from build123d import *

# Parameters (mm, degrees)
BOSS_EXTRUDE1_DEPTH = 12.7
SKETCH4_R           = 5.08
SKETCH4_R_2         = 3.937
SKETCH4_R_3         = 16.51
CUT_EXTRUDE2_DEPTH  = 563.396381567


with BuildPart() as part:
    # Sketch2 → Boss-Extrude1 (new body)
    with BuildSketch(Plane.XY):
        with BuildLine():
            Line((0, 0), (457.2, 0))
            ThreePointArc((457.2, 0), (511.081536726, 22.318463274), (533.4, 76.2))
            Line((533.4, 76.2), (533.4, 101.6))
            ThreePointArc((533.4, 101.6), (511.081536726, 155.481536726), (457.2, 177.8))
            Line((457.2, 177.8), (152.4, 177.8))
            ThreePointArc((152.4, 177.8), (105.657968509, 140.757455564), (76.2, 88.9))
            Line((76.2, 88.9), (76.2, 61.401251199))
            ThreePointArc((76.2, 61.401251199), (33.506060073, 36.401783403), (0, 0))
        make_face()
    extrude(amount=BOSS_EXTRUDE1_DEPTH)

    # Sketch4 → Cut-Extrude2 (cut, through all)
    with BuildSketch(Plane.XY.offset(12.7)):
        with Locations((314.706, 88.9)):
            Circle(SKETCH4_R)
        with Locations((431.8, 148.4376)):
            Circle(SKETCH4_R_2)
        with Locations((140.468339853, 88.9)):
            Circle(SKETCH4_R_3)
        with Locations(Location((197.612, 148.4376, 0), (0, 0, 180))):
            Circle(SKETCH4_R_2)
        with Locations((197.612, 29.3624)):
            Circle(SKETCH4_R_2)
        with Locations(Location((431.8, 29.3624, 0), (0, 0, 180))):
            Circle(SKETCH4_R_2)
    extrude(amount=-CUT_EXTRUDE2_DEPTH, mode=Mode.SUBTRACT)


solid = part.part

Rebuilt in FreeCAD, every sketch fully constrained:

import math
import FreeCAD as App
import Part
import Sketcher
from FreeCAD import Vector
Q = App.Units.Quantity

doc = App.newDocument("Part")
params = doc.addObject("Spreadsheet::Sheet", "Params")
for row, (alias, value) in enumerate([
    ("sketch1_radius", "3 in"),
    ("sketch1_width", "18 in"),
    ("sketch1_width2", "12 in"),
    ("sketch1_height", "1 in"),
    ("pad1_length", "0.5 in"),
    ("sketch2_diameter", "0.4 in"),
    ("sketch2_diameter2", "1.3 in"),
    ("sketch2_diameter3", "0.31 in"),
], start=1):
    params.set(f"A{row}", alias)
    params.set(f"B{row}", "=" + value)
    params.setAlias(f"B{row}", alias)

body = doc.addObject("PartDesign::Body", "Body")

# Sketch on XY plane
sketch1 = body.newObject("Sketcher::SketchObject", "Sketch")
sketch1.AttachmentSupport = (doc.getObject("XY_Plane"), [""])
sketch1.MapMode = "FlatFace"
sketch1.addGeometry([
    Part.LineSegment(Vector(0, 0, 0), Vector(457, 0, 0)),  # 0
    Part.ArcOfCircle(Part.Circle(Vector(457, 76, 0), Vector(0, 0, 1), 76), math.radians(-90), math.radians(0)),  # 1
    Part.LineSegment(Vector(533, 76, 0), Vector(533, 102, 0)),  # 2
    Part.ArcOfCircle(Part.Circle(Vector(457, 102, 0), Vector(0, 0, 1), 76), math.radians(0), math.radians(90)),  # 3
    Part.LineSegment(Vector(457, 178, 0), Vector(152, 178, 0)),  # 4
    Part.ArcOfCircle(Part.Circle(Vector(224, 39, 0), Vector(0, 0, 1), 156), math.radians(117), math.radians(161)),  # 5
    Part.LineSegment(Vector(76, 89, 0), Vector(76, 61, 0)),  # 6
    Part.ArcOfCircle(Part.Circle(Vector(138, -94, 0), Vector(0, 0, 1), 167), math.radians(112), math.radians(146)),  # 7
], False)
sketch1.addConstraint([
    Sketcher.Constraint("Tangent", 0, 2, 1, 1),
    Sketcher.Constraint("Tangent", 1, 2, 2, 1),
    Sketcher.Constraint("Tangent", 2, 2, 3, 1),
    Sketcher.Constraint("Tangent", 3, 2, 4, 1),
    Sketcher.Constraint("Coincident", 4, 2, 5, 1),
    Sketcher.Constraint("Coincident", 5, 2, 6, 1),
    Sketcher.Constraint("Coincident", 6, 2, 7, 1),
    Sketcher.Constraint("Coincident", 7, 2, 0, 1),
    Sketcher.Constraint("Horizontal", 0),
    Sketcher.Constraint("Vertical", 2),
    Sketcher.Constraint("Horizontal", 4),
    Sketcher.Constraint("Vertical", 6),
    Sketcher.Constraint("Coincident", 7, 2, -1, 1),
    Sketcher.Constraint("Equal", 1, 3),
    Sketcher.Constraint("Radius", 1, Q("3 in")),
    Sketcher.Constraint("DistanceX", 0, 1, 0, 2, Q("18 in")),
    Sketcher.Constraint("DistanceX", 4, 2, 4, 1, Q("12 in")),
    Sketcher.Constraint("DistanceY", 2, 1, 2, 2, Q("1 in")),
    Sketcher.Constraint("DistanceX", -1, 1, 5, 2, Q("3 in")),
    Sketcher.Constraint("DistanceY", -1, 1, 5, 2, Q("3.5 in")),
    Sketcher.Constraint("Radius", 5, Q("156.250943 mm")),
    Sketcher.Constraint("Radius", 7, Q("167.156636 mm")),
    Sketcher.Constraint("DistanceY", 6, 2, 6, 1, Q("27.498749 mm")),
])
sketch1.setExpression("Constraints[14]", "Params.sketch1_radius")
sketch1.setExpression("Constraints[15]", "Params.sketch1_width")
sketch1.setExpression("Constraints[16]", "Params.sketch1_width2")
sketch1.setExpression("Constraints[17]", "Params.sketch1_height")
pad1 = body.newObject("PartDesign::Pad", "Pad")
pad1.Profile = sketch1
pad1.setExpression("Length", "Params.pad1_length")

# Sketch on XY plane
sketch2 = body.newObject("Sketcher::SketchObject", "Sketch001")
sketch2.AttachmentSupport = (doc.getObject("XY_Plane"), [""])
sketch2.MapMode = "FlatFace"
sketch2.AttachmentOffset = App.Placement(Vector(0, 0, 0.5 * 25.4), App.Rotation())
sketch2.addGeometry([
    Part.Circle(Vector(314.7, 88.9, 0), Vector(0, 0, 1), 5.1),  # 0
    Part.Circle(Vector(431.8, 148.4, 0), Vector(0, 0, 1), 3.9),  # 1
    Part.Circle(Vector(140.5, 88.9, 0), Vector(0, 0, 1), 16.5),  # 2
    Part.Circle(Vector(197.6, 148.4, 0), Vector(0, 0, 1), 3.9),  # 3
    Part.Circle(Vector(197.6, 29.4, 0), Vector(0, 0, 1), 3.9),  # 4
    Part.Circle(Vector(431.8, 29.4, 0), Vector(0, 0, 1), 3.9),  # 5
], False)
sketch2.addConstraint([
    Sketcher.Constraint("Equal", 1, 3),
    Sketcher.Constraint("Equal", 3, 4),
    Sketcher.Constraint("Equal", 4, 5),
    Sketcher.Constraint("Horizontal", 0, 3, 2, 3),
    Sketcher.Constraint("Horizontal", 1, 3, 3, 3),
    Sketcher.Constraint("Horizontal", 4, 3, 5, 3),
    Sketcher.Constraint("Vertical", 3, 3, 4, 3),
    Sketcher.Constraint("Vertical", 1, 3, 5, 3),
    Sketcher.Constraint("Diameter", 0, Q("0.4 in")),
    Sketcher.Constraint("Diameter", 2, Q("1.3 in")),
    Sketcher.Constraint("Diameter", 1, Q("0.31 in")),
    Sketcher.Constraint("DistanceX", -1, 1, 1, 3, Q("17 in")),
    Sketcher.Constraint("DistanceY", -1, 1, 0, 3, Q("3.5 in")),
    Sketcher.Constraint("DistanceX", -1, 1, 0, 3, Q("12.39 in")),
    Sketcher.Constraint("DistanceX", -1, 1, 3, 3, Q("7.78 in")),
    Sketcher.Constraint("DistanceY", -1, 1, 1, 3, Q("5.844 in")),
    Sketcher.Constraint("DistanceY", -1, 1, 4, 3, Q("1.156 in")),
    Sketcher.Constraint("DistanceX", -1, 1, 2, 3, Q("140.46834 mm")),
])
sketch2.setExpression("Constraints[8]", "Params.sketch2_diameter")
sketch2.setExpression("Constraints[9]", "Params.sketch2_diameter2")
sketch2.setExpression("Constraints[10]", "Params.sketch2_diameter3")
pocket1 = body.newObject("PartDesign::Pocket", "Pocket")
pocket1.Profile = sketch2
pocket1.Type = "ThroughAll"

doc.recompute()
